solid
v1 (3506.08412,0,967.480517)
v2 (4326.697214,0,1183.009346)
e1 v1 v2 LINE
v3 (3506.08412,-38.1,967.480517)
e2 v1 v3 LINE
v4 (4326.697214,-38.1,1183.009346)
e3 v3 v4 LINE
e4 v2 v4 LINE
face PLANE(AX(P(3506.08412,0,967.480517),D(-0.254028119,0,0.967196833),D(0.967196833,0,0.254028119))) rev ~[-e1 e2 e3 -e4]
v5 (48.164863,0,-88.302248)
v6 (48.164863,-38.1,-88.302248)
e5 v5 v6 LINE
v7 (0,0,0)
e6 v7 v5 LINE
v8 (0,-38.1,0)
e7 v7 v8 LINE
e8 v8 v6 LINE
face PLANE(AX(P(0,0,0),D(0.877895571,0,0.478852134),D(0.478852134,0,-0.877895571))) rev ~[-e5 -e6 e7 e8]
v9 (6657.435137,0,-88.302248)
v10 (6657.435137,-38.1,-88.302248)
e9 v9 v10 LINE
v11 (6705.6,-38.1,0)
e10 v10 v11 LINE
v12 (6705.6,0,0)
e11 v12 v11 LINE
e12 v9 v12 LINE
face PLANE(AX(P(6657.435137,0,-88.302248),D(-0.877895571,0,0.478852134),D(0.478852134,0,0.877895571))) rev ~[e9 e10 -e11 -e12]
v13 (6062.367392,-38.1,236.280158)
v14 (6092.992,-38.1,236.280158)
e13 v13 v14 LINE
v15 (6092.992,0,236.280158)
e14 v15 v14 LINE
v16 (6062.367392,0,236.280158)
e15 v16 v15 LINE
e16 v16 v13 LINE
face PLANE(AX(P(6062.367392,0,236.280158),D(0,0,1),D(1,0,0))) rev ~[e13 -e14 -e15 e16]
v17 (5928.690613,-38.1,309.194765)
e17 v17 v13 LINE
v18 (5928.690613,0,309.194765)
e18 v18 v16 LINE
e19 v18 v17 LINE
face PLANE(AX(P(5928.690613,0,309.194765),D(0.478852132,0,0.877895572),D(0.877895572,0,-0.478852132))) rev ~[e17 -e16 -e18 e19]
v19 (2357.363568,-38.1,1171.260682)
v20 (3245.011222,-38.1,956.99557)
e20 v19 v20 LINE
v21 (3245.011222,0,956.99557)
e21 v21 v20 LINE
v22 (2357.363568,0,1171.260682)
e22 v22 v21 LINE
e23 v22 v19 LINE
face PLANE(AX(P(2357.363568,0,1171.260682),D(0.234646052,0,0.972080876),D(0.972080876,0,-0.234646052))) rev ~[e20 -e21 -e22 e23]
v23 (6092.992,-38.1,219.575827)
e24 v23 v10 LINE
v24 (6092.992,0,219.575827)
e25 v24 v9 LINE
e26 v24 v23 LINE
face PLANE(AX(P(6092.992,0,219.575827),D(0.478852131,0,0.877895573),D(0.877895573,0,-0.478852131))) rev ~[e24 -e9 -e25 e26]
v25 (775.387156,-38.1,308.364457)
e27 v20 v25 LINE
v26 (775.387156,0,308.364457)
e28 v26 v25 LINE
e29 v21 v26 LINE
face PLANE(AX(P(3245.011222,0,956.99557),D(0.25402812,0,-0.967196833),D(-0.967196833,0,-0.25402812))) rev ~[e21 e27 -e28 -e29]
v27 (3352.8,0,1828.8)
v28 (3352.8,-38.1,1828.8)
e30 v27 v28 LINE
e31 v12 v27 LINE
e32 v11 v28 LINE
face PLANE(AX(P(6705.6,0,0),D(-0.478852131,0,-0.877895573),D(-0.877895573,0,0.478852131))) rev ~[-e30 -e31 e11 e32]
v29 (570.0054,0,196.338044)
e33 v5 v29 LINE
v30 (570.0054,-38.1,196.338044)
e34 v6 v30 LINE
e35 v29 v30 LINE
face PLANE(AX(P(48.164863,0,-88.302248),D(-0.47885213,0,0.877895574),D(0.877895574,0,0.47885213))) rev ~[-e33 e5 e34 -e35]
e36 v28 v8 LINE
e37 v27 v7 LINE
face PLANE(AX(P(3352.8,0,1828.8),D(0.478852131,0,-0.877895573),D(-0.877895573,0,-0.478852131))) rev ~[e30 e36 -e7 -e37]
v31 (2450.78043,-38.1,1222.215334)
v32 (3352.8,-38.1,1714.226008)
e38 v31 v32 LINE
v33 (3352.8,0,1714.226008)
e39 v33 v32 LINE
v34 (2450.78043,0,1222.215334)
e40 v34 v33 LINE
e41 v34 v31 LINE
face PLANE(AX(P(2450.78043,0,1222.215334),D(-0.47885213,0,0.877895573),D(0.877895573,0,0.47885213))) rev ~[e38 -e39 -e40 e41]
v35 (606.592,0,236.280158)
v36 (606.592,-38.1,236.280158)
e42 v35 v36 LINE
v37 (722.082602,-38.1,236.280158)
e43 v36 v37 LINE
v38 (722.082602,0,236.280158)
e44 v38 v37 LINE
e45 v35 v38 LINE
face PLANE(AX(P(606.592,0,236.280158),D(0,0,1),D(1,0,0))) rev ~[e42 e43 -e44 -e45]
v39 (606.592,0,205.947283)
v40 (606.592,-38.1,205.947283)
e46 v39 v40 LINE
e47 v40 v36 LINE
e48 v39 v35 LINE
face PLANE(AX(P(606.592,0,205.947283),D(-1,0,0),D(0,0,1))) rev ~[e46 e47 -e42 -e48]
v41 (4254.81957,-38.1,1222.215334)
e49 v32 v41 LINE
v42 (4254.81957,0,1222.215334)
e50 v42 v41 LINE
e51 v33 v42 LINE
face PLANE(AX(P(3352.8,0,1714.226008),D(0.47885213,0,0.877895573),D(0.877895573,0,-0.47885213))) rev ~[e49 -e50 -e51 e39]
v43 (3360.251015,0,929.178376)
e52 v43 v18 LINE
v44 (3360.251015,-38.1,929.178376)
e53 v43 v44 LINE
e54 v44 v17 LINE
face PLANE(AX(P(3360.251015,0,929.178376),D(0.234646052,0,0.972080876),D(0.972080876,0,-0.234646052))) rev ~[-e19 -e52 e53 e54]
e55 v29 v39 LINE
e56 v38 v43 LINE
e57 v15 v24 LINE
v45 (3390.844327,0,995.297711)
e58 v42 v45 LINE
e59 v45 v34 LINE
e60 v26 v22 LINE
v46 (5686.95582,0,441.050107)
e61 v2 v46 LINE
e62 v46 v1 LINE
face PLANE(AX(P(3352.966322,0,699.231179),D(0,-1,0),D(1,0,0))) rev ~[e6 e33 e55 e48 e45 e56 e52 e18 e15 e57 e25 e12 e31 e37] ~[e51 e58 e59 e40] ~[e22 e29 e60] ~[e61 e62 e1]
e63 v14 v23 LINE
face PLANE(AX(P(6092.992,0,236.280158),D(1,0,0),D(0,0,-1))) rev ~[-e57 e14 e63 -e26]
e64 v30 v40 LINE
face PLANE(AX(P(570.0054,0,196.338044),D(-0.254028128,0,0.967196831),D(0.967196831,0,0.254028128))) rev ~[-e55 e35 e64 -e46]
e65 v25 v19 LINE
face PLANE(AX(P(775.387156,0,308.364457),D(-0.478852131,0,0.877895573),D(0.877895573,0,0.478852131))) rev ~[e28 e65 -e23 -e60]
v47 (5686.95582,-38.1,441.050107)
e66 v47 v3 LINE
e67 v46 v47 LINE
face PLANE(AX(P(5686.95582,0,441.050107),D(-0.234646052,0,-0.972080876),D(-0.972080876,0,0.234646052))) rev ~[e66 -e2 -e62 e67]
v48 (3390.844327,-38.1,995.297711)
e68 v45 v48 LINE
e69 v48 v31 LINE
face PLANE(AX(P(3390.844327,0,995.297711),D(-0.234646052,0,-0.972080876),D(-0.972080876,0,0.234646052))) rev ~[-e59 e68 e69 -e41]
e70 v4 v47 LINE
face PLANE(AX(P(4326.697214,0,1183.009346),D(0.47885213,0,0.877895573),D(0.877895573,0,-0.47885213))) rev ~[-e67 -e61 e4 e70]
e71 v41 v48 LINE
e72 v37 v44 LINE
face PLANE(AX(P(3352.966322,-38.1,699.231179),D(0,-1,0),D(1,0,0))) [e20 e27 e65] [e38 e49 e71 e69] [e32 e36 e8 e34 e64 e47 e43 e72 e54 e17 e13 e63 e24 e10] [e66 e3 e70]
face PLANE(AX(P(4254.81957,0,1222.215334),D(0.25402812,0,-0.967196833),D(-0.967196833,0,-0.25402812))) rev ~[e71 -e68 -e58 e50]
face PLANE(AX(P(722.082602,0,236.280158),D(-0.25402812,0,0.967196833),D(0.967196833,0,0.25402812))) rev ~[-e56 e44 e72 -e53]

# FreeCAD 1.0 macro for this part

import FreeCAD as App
import Part
import Sketcher

V = App.Vector
Q = App.Units.Quantity

doc = App.newDocument("Part")
body = doc.addObject("PartDesign::Body", "Body")

# Sketch on XZ plane
sketch1 = body.newObject("Sketcher::SketchObject", "Sketch")
sketch1.AttachmentSupport = (doc.getObject("XZ_Plane"), [""])
sketch1.MapMode = "FlatFace"
sketch1.addGeometry([
    Part.LineSegment(V(3353, 1829, 0), V(0, 0, 0)),  # 0
    Part.LineSegment(V(0, 0, 0), V(48, -88, 0)),  # 1
    Part.LineSegment(V(48, -88, 0), V(570, 196, 0)),  # 2
    Part.LineSegment(V(570, 196, 0), V(607, 206, 0)),  # 3
    Part.LineSegment(V(607, 206, 0), V(607, 236, 0)),  # 4
    Part.LineSegment(V(607, 236, 0), V(722, 236, 0)),  # 5
    Part.LineSegment(V(722, 236, 0), V(3360, 929, 0)),  # 6
    Part.LineSegment(V(3360, 929, 0), V(5929, 309, 0)),  # 7
    Part.LineSegment(V(5929, 309, 0), V(6062, 236, 0)),  # 8
    Part.LineSegment(V(6062, 236, 0), V(6093, 236, 0)),  # 9
    Part.LineSegment(V(6093, 236, 0), V(6093, 220, 0)),  # 10
    Part.LineSegment(V(6093, 220, 0), V(6657, -88, 0)),  # 11
    Part.LineSegment(V(6657, -88, 0), V(6706, 0, 0)),  # 12
    Part.LineSegment(V(6706, 0, 0), V(3353, 1829, 0)),  # 13
    Part.LineSegment(V(2357, 1171, 0), V(3245, 957, 0)),  # 14
    Part.LineSegment(V(3245, 957, 0), V(775, 308, 0)),  # 15
    Part.LineSegment(V(775, 308, 0), V(2357, 1171, 0)),  # 16
    Part.LineSegment(V(4327, 1183, 0), V(5687, 441, 0)),  # 17
    Part.LineSegment(V(5687, 441, 0), V(3506, 967, 0)),  # 18
    Part.LineSegment(V(3506, 967, 0), V(4327, 1183, 0)),  # 19
    Part.LineSegment(V(3391, 995, 0), V(2451, 1222, 0)),  # 20
    Part.LineSegment(V(2451, 1222, 0), V(3353, 1714, 0)),  # 21
    Part.LineSegment(V(3353, 1714, 0), V(4255, 1222, 0)),  # 22
    Part.LineSegment(V(4255, 1222, 0), V(3391, 995, 0)),  # 23
], False)
sketch1.addConstraint([
    Sketcher.Constraint("Coincident", 0, 2, 1, 1),
    Sketcher.Constraint("Coincident", 1, 2, 2, 1),
    Sketcher.Constraint("Coincident", 2, 2, 3, 1),
    Sketcher.Constraint("Coincident", 3, 2, 4, 1),
    Sketcher.Constraint("Coincident", 4, 2, 5, 1),
    Sketcher.Constraint("Coincident", 5, 2, 6, 1),
    Sketcher.Constraint("Coincident", 6, 2, 7, 1),
    Sketcher.Constraint("Coincident", 7, 2, 8, 1),
    Sketcher.Constraint("Coincident", 8, 2, 9, 1),
    Sketcher.Constraint("Coincident", 9, 2, 10, 1),
    Sketcher.Constraint("Coincident", 10, 2, 11, 1),
    Sketcher.Constraint("Coincident", 11, 2, 12, 1),
    Sketcher.Constraint("Coincident", 12, 2, 13, 1),
    Sketcher.Constraint("Coincident", 13, 2, 0, 1),
    Sketcher.Constraint("Coincident", 14, 2, 15, 1),
    Sketcher.Constraint("Coincident", 15, 2, 16, 1),
    Sketcher.Constraint("Coincident", 16, 2, 14, 1),
    Sketcher.Constraint("Coincident", 17, 2, 18, 1),
    Sketcher.Constraint("Coincident", 18, 2, 19, 1),
    Sketcher.Constraint("Coincident", 19, 2, 17, 1),
    Sketcher.Constraint("Coincident", 20, 2, 21, 1),
    Sketcher.Constraint("Coincident", 21, 2, 22, 1),
    Sketcher.Constraint("Coincident", 22, 2, 23, 1),
    Sketcher.Constraint("Coincident", 23, 2, 20, 1),
    Sketcher.Constraint("Vertical", 4),
    Sketcher.Constraint("Horizontal", 5),
    Sketcher.Constraint("Horizontal", 9),
    Sketcher.Constraint("Vertical", 10),
    Sketcher.Constraint("Coincident", 0, 2, -1, 1),
    Sketcher.Constraint("PointOnObject", 12, 2, -1),
    Sketcher.Constraint("Perpendicular", 0, 1),
    Sketcher.Constraint("Perpendicular", 1, 2),
    Sketcher.Constraint("Parallel", 3, 6),
    Sketcher.Constraint("Parallel", 8, 11),
    Sketcher.Constraint("Perpendicular", 11, 12),
    Sketcher.Constraint("Perpendicular", 12, 13),
    Sketcher.Constraint("Parallel", 7, 14),
    Sketcher.Constraint("Parallel", 6, 15),
    Sketcher.Constraint("Parallel", 2, 16),
    Sketcher.Constraint("Parallel", 13, 17),
    Sketcher.Constraint("Parallel", 14, 18),
    Sketcher.Constraint("Parallel", 15, 19),
    Sketcher.Constraint("Parallel", 18, 20),
    Sketcher.Constraint("Parallel", 16, 21),
    Sketcher.Constraint("Parallel", 17, 22),
    Sketcher.Constraint("Parallel", 19, 23),
    Sketcher.Constraint("Horizontal", 5, 2, 8, 2),
    Sketcher.Constraint("Horizontal", 1, 2, 11, 2),
    Sketcher.Constraint("Horizontal", 20, 2, 22, 2),
    Sketcher.Constraint("Vertical", 13, 2, 21, 2),
    Sketcher.Constraint("Equal", 1, 12),
    Sketcher.Constraint("DistanceX", -1, 1, 12, 2, Q("264 in")),
    Sketcher.Constraint("DistanceY", -1, 1, 13, 2, Q("72 in")),
    Sketcher.Constraint("DistanceX", 4, 2, 9, 2, Q("216 in")),
    Sketcher.Constraint("Distance", 1, Q("3.96 in")),
    Sketcher.Constraint("Distance", 11, Q("25.3130001 in")),
    Sketcher.Constraint("DistanceX", 5, 1, 5, 2, 115.490602),
    Sketcher.Constraint("DistanceX", 9, 1, 9, 2, 30.624608),
    Sketcher.Constraint("DistanceY", 10, 2, 10, 1, 16.704331),
    Sketcher.Constraint("DistanceX", -1, 1, 2, 2, 570.0054),
    Sketcher.Constraint("DistanceY", 5, 2, 15, 2, 72.084299),
    Sketcher.Constraint("DistanceX", 18, 2, 17, 2, 2180.8717),
    Sketcher.Constraint("DistanceX", 6, 2, 19, 2, 966.446199),
    Sketcher.Constraint("Distance", 15, 2553.383118),
    Sketcher.Constraint("Distance", 17, 1549.453771),
    Sketcher.Constraint("Distance", 18, 2243.508491),
    Sketcher.Constraint("Distance", 20, 967.063461),
    Sketcher.Constraint("DistanceX", -1, 1, 16, 2, 2357.363568),
    Sketcher.Constraint("DistanceX", -1, 1, 17, 2, 5686.95582),
    Sketcher.Constraint("DistanceY", -1, 1, 21, 2, 1714.226008),
    Sketcher.Constraint("DistanceY", 7, 2, 17, 2, 131.855342),
])
pad1 = body.newObject("PartDesign::Pad", "Pad")
pad1.Profile = sketch1
pad1.Length = Q("1.5 in")

doc.recompute()
